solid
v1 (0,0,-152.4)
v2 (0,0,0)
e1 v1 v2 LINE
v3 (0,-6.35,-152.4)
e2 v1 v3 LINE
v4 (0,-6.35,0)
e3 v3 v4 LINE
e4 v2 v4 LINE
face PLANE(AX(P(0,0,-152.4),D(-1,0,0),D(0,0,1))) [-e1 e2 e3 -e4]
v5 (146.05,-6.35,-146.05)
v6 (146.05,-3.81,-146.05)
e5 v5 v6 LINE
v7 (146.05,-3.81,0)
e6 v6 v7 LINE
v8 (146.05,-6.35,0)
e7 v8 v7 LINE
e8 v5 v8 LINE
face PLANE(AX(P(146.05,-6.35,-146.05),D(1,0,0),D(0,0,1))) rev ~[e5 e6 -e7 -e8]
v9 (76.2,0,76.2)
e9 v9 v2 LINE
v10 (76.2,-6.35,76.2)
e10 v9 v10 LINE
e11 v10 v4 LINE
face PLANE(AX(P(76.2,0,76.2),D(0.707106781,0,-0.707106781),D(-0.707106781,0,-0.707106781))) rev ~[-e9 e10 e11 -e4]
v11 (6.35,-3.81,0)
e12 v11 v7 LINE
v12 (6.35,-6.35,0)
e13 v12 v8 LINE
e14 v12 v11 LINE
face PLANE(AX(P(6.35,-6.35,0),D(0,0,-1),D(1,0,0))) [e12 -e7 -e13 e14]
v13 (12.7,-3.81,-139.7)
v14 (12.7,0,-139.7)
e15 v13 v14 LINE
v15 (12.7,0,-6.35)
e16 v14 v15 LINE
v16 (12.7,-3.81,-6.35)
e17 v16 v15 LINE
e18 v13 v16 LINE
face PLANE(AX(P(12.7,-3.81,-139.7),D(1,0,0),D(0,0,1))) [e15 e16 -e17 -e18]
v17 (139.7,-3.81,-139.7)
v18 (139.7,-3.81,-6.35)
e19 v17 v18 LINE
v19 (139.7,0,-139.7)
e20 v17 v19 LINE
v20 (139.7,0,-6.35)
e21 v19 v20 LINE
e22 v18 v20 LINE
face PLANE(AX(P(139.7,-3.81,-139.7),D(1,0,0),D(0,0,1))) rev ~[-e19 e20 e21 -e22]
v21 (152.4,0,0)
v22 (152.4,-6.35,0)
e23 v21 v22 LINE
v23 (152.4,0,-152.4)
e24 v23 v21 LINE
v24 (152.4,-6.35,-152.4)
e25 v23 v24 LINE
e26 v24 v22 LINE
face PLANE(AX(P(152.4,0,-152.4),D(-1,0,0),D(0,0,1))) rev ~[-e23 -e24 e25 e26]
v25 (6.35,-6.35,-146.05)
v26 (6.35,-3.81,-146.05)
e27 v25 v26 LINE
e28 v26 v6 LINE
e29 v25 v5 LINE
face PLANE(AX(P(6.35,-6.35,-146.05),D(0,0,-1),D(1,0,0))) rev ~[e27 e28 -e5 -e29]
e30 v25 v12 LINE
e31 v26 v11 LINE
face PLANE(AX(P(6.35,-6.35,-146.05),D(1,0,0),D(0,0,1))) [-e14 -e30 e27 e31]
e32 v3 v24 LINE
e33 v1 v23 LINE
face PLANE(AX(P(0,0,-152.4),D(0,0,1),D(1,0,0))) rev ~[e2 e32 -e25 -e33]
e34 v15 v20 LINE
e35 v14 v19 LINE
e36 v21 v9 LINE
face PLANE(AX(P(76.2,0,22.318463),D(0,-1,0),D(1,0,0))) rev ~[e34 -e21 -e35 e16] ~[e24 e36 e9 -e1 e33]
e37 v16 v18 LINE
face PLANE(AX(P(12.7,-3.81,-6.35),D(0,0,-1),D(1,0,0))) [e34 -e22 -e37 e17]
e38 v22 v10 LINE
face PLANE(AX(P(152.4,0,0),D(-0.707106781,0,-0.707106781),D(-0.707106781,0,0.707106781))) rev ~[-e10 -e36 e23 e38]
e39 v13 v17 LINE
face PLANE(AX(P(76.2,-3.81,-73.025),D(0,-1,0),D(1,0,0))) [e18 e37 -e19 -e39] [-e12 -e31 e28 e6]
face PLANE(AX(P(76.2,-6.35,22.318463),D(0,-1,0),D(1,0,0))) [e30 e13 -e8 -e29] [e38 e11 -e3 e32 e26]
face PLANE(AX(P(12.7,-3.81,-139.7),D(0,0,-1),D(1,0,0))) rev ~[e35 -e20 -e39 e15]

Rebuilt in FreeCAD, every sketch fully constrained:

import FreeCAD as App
import Part
import Sketcher

V = App.Vector
Q = App.Units.Quantity

doc = App.newDocument("Part")
body = doc.addObject("PartDesign::Body", "Body")

# Sketch on XZ plane
sketch1 = body.newObject("Sketcher::SketchObject", "Sketch")
sketch1.AttachmentSupport = (doc.getObject("XZ_Plane"), [""])
sketch1.MapMode = "FlatFace"
sketch1.addGeometry([
    Part.LineSegment(V(76, 76, 0), V(0, 0, 0)),  # 0
    Part.LineSegment(V(0, 0, 0), V(0, -152, 0)),  # 1
    Part.LineSegment(V(0, -152, 0), V(152, -152, 0)),  # 2
    Part.LineSegment(V(152, -152, 0), V(152, 0, 0)),  # 3
    Part.LineSegment(V(152, 0, 0), V(76, 76, 0)),  # 4
], False)
sketch1.addConstraint([
    Sketcher.Constraint("Coincident", 0, 2, 1, 1),
    Sketcher.Constraint("Coincident", 1, 2, 2, 1),
    Sketcher.Constraint("Coincident", 2, 2, 3, 1),
    Sketcher.Constraint("Coincident", 3, 2, 4, 1),
    Sketcher.Constraint("Coincident", 4, 2, 0, 1),
    Sketcher.Constraint("Vertical", 1),
    Sketcher.Constraint("Horizontal", 2),
    Sketcher.Constraint("Vertical", 3),
    Sketcher.Constraint("Coincident", 0, 2, -1, 1),
    Sketcher.Constraint("PointOnObject", 3, 2, -1),
    Sketcher.Constraint("Perpendicular", 0, 4),
    Sketcher.Constraint("Equal", 2, 1),
    Sketcher.Constraint("Equal", 0, 4),
    Sketcher.Constraint("DistanceX", 2, 1, 2, 2, Q("6 in")),
])
pad1 = body.newObject("PartDesign::Pad", "Pad")
pad1.Profile = sketch1
pad1.Length = Q("0.25 in")

# Sketch on XZ plane
sketch2 = body.newObject("Sketcher::SketchObject", "Sketch001")
sketch2.AttachmentSupport = (doc.getObject("XZ_Plane"), [""])
sketch2.MapMode = "FlatFace"
sketch2.AttachmentOffset = App.Placement(V(0, 0, 0.25 * 25.4), App.Rotation())
sketch2.addGeometry([
    Part.LineSegment(V(6, 0, 0), V(6, -146, 0)),
    Part.LineSegment(V(6, -146, 0), V(146, -146, 0)),
    Part.LineSegment(V(146, -146, 0), V(146, 0, 0)),
    Part.LineSegment(V(146, 0, 0), V(6, 0, 0)),
], False)
sketch2.addConstraint([
    Sketcher.Constraint("Coincident", 0, 2, 1, 1),
    Sketcher.Constraint("Coincident", 1, 2, 2, 1),
    Sketcher.Constraint("Coincident", 2, 2, 3, 1),
    Sketcher.Constraint("Coincident", 3, 2, 0, 1),
    Sketcher.Constraint("Vertical", 0),
    Sketcher.Constraint("Horizontal", 1),
    Sketcher.Constraint("Vertical", 2),
    Sketcher.Constraint("Horizontal", 3),
    Sketcher.Constraint("PointOnObject", 2, 2, -1),
    Sketcher.Constraint("DistanceX", 1, 1, 1, 2, Q("5.5 in")),
    Sketcher.Constraint("DistanceY", 0, 2, 0, 1, Q("5.75 in")),
    Sketcher.Constraint("DistanceX", -1, 1, 0, 2, Q("0.25 in")),
])
pocket1 = body.newObject("PartDesign::Pocket", "Pocket")
pocket1.Profile = sketch2
pocket1.Length = Q("0.1 in")

# Sketch on XZ plane
sketch3 = body.newObject("Sketcher::SketchObject", "Sketch002")
sketch3.AttachmentSupport = (doc.getObject("XZ_Plane"), [""])
sketch3.MapMode = "FlatFace"
sketch3.AttachmentOffset = App.Placement(V(0, 0, 0.15 * 25.4), App.Rotation())
sketch3.addGeometry([
    Part.LineSegment(V(13, -6, 0), V(13, -140, 0)),
    Part.LineSegment(V(13, -140, 0), V(140, -140, 0)),
    Part.LineSegment(V(140, -140, 0), V(140, -6, 0)),
    Part.LineSegment(V(140, -6, 0), V(13, -6, 0)),
], False)
sketch3.addConstraint([
    Sketcher.Constraint("Coincident", 0, 2, 1, 1),
    Sketcher.Constraint("Coincident", 1, 2, 2, 1),
    Sketcher.Constraint("Coincident", 2, 2, 3, 1),
    Sketcher.Constraint("Coincident", 3, 2, 0, 1),
    Sketcher.Constraint("Vertical", 0),
    Sketcher.Constraint("Horizontal", 1),
    Sketcher.Constraint("Vertical", 2),
    Sketcher.Constraint("Horizontal", 3),
    Sketcher.Constraint("DistanceX", 1, 1, 1, 2, Q("5 in")),
    Sketcher.Constraint("DistanceY", 0, 2, 0, 1, Q("5.25 in")),
    Sketcher.Constraint("DistanceX", -1, 1, 0, 2, Q("0.5 in")),
    Sketcher.Constraint("DistanceY", 0, 2, -1, 1, Q("5.5 in")),
])
pocket2 = body.newObject("PartDesign::Pocket", "Pocket001")
pocket2.Profile = sketch3
pocket2.Type = "ThroughAll"

doc.recompute()
